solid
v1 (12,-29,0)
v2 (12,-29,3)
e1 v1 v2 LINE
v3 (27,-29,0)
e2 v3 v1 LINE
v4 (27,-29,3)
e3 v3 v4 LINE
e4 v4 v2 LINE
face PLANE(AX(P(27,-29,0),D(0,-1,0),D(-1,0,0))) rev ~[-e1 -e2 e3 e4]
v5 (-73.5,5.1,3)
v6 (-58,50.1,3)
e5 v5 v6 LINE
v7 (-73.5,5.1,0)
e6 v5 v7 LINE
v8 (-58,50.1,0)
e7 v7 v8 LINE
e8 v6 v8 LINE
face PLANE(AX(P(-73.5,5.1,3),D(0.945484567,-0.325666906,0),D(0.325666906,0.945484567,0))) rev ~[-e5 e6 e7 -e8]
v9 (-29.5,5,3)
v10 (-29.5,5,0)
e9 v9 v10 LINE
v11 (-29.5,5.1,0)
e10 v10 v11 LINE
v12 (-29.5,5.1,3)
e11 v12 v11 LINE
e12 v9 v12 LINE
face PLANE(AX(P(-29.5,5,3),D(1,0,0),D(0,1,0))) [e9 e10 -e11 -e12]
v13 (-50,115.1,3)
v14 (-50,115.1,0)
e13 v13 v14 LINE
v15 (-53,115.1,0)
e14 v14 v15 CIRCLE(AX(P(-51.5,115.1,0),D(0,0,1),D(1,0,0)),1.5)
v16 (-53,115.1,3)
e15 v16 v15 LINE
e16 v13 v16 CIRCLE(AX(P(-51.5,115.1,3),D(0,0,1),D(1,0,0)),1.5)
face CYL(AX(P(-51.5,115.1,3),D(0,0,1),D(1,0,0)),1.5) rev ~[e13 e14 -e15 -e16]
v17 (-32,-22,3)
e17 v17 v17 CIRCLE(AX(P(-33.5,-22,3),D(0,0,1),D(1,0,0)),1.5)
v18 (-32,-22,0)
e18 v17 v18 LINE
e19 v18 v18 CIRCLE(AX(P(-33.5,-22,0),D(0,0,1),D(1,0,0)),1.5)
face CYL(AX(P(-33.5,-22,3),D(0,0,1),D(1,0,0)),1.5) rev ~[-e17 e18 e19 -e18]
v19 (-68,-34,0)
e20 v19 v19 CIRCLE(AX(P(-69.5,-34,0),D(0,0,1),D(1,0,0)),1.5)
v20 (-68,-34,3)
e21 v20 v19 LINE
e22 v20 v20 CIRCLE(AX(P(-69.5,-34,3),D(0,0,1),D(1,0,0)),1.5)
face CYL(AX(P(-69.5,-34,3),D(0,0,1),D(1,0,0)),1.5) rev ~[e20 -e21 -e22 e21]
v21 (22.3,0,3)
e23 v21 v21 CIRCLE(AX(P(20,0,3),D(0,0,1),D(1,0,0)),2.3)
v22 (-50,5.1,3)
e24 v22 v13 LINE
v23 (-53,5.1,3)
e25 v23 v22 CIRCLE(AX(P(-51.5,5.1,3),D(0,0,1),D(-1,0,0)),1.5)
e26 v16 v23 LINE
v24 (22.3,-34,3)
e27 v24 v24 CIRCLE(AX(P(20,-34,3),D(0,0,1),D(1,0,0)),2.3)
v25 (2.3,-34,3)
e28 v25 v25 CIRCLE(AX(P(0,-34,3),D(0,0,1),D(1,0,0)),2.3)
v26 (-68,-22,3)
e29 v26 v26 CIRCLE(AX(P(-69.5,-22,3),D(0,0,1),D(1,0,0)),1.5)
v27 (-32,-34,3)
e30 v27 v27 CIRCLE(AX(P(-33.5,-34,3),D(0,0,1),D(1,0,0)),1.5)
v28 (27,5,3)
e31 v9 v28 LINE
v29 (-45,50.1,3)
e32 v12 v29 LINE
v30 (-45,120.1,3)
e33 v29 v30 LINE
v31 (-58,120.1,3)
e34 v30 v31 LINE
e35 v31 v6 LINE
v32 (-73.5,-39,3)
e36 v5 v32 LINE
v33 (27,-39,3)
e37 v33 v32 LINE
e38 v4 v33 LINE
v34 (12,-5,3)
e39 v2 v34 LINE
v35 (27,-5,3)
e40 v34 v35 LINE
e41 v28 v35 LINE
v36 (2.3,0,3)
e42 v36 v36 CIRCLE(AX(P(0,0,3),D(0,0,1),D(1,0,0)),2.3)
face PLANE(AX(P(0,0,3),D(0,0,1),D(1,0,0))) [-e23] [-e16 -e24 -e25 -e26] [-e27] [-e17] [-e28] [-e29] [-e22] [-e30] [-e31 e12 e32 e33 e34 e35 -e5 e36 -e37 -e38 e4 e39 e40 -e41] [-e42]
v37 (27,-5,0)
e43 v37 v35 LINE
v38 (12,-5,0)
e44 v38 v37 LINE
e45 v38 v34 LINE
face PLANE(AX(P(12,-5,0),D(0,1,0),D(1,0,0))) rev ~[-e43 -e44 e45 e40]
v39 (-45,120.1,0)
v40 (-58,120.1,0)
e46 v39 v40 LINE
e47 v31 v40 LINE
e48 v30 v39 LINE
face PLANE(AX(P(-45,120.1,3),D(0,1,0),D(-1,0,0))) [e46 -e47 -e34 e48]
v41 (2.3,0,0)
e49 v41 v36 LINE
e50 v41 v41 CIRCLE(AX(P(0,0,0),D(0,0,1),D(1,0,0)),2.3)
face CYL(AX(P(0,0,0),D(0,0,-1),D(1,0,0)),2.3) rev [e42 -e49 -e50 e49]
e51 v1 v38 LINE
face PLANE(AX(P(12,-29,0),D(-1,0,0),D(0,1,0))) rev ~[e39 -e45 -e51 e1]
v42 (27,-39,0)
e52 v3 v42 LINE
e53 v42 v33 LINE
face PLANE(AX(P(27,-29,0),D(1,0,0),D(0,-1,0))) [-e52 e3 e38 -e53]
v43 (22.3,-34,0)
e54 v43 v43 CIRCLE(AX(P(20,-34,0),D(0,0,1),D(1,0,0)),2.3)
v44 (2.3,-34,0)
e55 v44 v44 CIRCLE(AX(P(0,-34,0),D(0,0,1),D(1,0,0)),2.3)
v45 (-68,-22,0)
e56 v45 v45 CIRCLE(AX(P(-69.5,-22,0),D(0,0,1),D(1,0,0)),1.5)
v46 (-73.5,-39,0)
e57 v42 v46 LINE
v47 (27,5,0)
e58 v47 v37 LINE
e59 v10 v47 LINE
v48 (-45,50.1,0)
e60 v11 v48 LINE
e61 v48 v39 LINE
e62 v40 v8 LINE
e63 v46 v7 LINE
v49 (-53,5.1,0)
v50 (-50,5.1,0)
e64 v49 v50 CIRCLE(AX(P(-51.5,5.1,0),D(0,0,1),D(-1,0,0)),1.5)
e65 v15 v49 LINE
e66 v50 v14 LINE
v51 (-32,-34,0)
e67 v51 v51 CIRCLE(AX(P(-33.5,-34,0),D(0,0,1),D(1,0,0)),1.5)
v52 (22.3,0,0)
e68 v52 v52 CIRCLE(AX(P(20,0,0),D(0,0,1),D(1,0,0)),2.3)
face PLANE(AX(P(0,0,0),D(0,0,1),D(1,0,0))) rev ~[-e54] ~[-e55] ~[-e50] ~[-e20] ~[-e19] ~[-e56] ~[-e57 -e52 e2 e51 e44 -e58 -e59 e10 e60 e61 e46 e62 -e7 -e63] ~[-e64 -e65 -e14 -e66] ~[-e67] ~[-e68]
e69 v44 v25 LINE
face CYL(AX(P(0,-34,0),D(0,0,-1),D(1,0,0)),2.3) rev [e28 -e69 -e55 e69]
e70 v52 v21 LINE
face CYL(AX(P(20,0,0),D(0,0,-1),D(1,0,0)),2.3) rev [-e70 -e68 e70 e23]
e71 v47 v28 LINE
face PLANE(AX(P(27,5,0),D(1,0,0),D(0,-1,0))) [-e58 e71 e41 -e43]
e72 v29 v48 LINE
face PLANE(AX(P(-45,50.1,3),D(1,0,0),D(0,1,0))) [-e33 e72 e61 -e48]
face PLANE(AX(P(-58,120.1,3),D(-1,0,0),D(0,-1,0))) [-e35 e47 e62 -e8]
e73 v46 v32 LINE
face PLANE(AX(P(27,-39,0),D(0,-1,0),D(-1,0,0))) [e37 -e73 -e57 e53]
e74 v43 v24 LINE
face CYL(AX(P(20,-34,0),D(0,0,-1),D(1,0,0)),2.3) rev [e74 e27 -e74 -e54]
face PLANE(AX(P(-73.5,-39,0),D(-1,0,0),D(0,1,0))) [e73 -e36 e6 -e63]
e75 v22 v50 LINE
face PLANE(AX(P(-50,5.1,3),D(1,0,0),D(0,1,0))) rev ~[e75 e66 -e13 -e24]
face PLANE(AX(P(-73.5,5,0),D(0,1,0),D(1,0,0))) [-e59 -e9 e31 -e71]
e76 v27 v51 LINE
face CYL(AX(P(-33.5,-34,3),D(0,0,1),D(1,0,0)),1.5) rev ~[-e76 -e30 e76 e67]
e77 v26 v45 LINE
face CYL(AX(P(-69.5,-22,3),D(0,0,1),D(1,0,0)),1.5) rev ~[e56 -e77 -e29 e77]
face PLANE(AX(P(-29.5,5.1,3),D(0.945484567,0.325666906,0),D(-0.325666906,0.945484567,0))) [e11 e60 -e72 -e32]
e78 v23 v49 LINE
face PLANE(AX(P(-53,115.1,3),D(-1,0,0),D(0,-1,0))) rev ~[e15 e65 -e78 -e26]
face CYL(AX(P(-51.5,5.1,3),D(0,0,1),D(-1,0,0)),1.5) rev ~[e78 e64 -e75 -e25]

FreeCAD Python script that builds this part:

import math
import FreeCAD as App
import Part
import Sketcher
Q = App.Units.Quantity

doc = App.newDocument("Part")
params = doc.addObject("Spreadsheet::Sheet", "Params")
for row, (alias, value) in enumerate([
    ("sketch1_diameter", "4.6 mm"),
    ("sketch1_width", "15 mm"),
    ("sketch1_height", "10 mm"),
    ("sketch1_width2", "100.5 mm"),
    ("pad1_length", "3 mm"),
    ("sketch2_diameter", "3 mm"),
    ("pocket1_length", "3 mm"),
    ("sketch3_width", "44 mm"),
    ("sketch3_width2", "3 mm"),
    ("sketch3_height", "110 mm"),
    ("sketch3_height2", "0.1 mm"),
    ("pad2_length", "3 mm"),
    ("sketch4_radius", "1.5 mm"),
    ("pocket2_length", "3 mm"),
], start=1):
    params.set(f"A{row}", alias)
    params.set(f"B{row}", "=" + value)
    params.setAlias(f"B{row}", alias)

body = doc.addObject("PartDesign::Body", "Body")

sketch1 = body.newObject("Sketcher::SketchObject", "Sketch")
sketch1.AttachmentSupport = (doc.getObject("XY_Plane"), [""])
sketch1.MapMode = "FlatFace"
sketch1.addGeometry(Part.LineSegment(App.Vector(27, 5, 0), App.Vector(-73.5, 5, 0)), False)
sketch1.addGeometry(Part.LineSegment(App.Vector(-73.5, 5, 0), App.Vector(-73.5, -39, 0)), False)
sketch1.addGeometry(Part.LineSegment(App.Vector(-73.5, -39, 0), App.Vector(27, -39, 0)), False)
sketch1.addGeometry(Part.LineSegment(App.Vector(27, -39, 0), App.Vector(27, -29, 0)), False)
sketch1.addGeometry(Part.LineSegment(App.Vector(27, -29, 0), App.Vector(12, -29, 0)), False)
sketch1.addGeometry(Part.LineSegment(App.Vector(12, -29, 0), App.Vector(12, -5, 0)), False)
sketch1.addGeometry(Part.LineSegment(App.Vector(12, -5, 0), App.Vector(27, -5, 0)), False)
sketch1.addGeometry(Part.LineSegment(App.Vector(27, -5, 0), App.Vector(27, 5, 0)), False)
sketch1.addGeometry(Part.Circle(App.Vector(0, -34, 0), App.Vector(0, 0, 1), 2.3), False)
sketch1.addGeometry(Part.Circle(App.Vector(20, -34, 0), App.Vector(0, 0, 1), 2.3), False)
sketch1.addGeometry(Part.Circle(App.Vector(0, 0, 0), App.Vector(0, 0, 1), 2.3), False)
sketch1.addGeometry(Part.Circle(App.Vector(20, 0, 0), App.Vector(0, 0, 1), 2.3), False)
sketch1.addConstraint(Sketcher.Constraint("Coincident", 0, 2, 1, 1))
sketch1.addConstraint(Sketcher.Constraint("Coincident", 1, 2, 2, 1))
sketch1.addConstraint(Sketcher.Constraint("Coincident", 2, 2, 3, 1))
sketch1.addConstraint(Sketcher.Constraint("Coincident", 3, 2, 4, 1))
sketch1.addConstraint(Sketcher.Constraint("Coincident", 4, 2, 5, 1))
sketch1.addConstraint(Sketcher.Constraint("Coincident", 5, 2, 6, 1))
sketch1.addConstraint(Sketcher.Constraint("Coincident", 6, 2, 7, 1))
sketch1.addConstraint(Sketcher.Constraint("Coincident", 7, 2, 0, 1))
sketch1.addConstraint(Sketcher.Constraint("Horizontal", 0))
sketch1.addConstraint(Sketcher.Constraint("Vertical", 1))
sketch1.addConstraint(Sketcher.Constraint("Horizontal", 2))
sketch1.addConstraint(Sketcher.Constraint("Vertical", 3))
sketch1.addConstraint(Sketcher.Constraint("Horizontal", 4))
sketch1.addConstraint(Sketcher.Constraint("Vertical", 5))
sketch1.addConstraint(Sketcher.Constraint("Horizontal", 6))
sketch1.addConstraint(Sketcher.Constraint("Vertical", 7))
sketch1.addConstraint(Sketcher.Constraint("Coincident", 10, 3, -1, 1))
sketch1.addConstraint(Sketcher.Constraint("Equal", 8, 9))
sketch1.addConstraint(Sketcher.Constraint("Equal", 9, 10))
sketch1.addConstraint(Sketcher.Constraint("Equal", 10, 11))
sketch1.addConstraint(Sketcher.Constraint("PointOnObject", 8, 3, -2))
sketch1.addConstraint(Sketcher.Constraint("PointOnObject", 11, 3, -1))
sketch1.addConstraint(Sketcher.Constraint("Horizontal", 8, 3, 9, 3))
sketch1.addConstraint(Sketcher.Constraint("Vertical", 9, 3, 11, 3))
sketch1.addConstraint(Sketcher.Constraint("Vertical", 3, 2, 6, 2))
sketch1.addConstraint(Sketcher.Constraint("Equal", 3, 7))
sketch1.addConstraint(Sketcher.Constraint("Diameter", 8, Q("4.6 mm")))
sketch1.addConstraint(Sketcher.Constraint("DistanceX", 4, 2, 4, 1, Q("15 mm")))
sketch1.addConstraint(Sketcher.Constraint("DistanceY", 3, 1, 3, 2, Q("10 mm")))
sketch1.addConstraint(Sketcher.Constraint("DistanceX", 0, 2, 0, 1, Q("100.5 mm")))
sketch1.addConstraint(Sketcher.Constraint("DistanceY", 8, 3, -1, 1, Q("34 mm")))
sketch1.addConstraint(Sketcher.Constraint("DistanceX", -1, 1, 9, 3, Q("20 mm")))
sketch1.addConstraint(Sketcher.Constraint("DistanceY", -1, 1, 0, 2, Q("5 mm")))
sketch1.addConstraint(Sketcher.Constraint("DistanceY", 1, 2, 8, 3, Q("5 mm")))
sketch1.addConstraint(Sketcher.Constraint("DistanceX", 9, 3, 2, 2, Q("7 mm")))
sketch1.setExpression("Constraints[26]", "Params.sketch1_diameter")
sketch1.setExpression("Constraints[27]", "Params.sketch1_width")
sketch1.setExpression("Constraints[28]", "Params.sketch1_height")
sketch1.setExpression("Constraints[29]", "Params.sketch1_width2")
pad1 = body.newObject("PartDesign::Pad", "Pad")
pad1.Profile = sketch1
pad1.setExpression("Length", "Params.pad1_length")

sketch2 = body.newObject("Sketcher::SketchObject", "Sketch001")
sketch2.AttachmentSupport = (doc.getObject("XY_Plane"), [""])
sketch2.MapMode = "FlatFace"
sketch2.AttachmentOffset = App.Placement(App.Vector(0, 0, 3), App.Rotation())
sketch2.addGeometry(Part.Circle(App.Vector(-69.5, -34, 0), App.Vector(0, 0, 1), 1.5), False)
sketch2.addGeometry(Part.Circle(App.Vector(-33.5, -34, 0), App.Vector(0, 0, 1), 1.5), False)
sketch2.addGeometry(Part.Circle(App.Vector(-69.5, -22, 0), App.Vector(0, 0, 1), 1.5), False)
sketch2.addGeometry(Part.Circle(App.Vector(-33.5, -22, 0), App.Vector(0, 0, 1), 1.5), False)
sketch2.addConstraint(Sketcher.Constraint("Equal", 0, 1))
sketch2.addConstraint(Sketcher.Constraint("Equal", 1, 2))
sketch2.addConstraint(Sketcher.Constraint("Equal", 2, 3))
sketch2.addConstraint(Sketcher.Constraint("Horizontal", 0, 3, 1, 3))
sketch2.addConstraint(Sketcher.Constraint("Horizontal", 2, 3, 3, 3))
sketch2.addConstraint(Sketcher.Constraint("Vertical", 0, 3, 2, 3))
sketch2.addConstraint(Sketcher.Constraint("Vertical", 1, 3, 3, 3))
sketch2.addConstraint(Sketcher.Constraint("Diameter", 0, Q("3 mm")))
sketch2.addConstraint(Sketcher.Constraint("DistanceX", 0, 3, 1, 3, Q("36 mm")))
sketch2.addConstraint(Sketcher.Constraint("DistanceY", 0, 3, 2, 3, Q("12 mm")))
sketch2.addConstraint(Sketcher.Constraint("DistanceY", 0, 3, -1, 1, Q("34 mm")))
sketch2.addConstraint(Sketcher.Constraint("DistanceX", 0, 3, -1, 1, Q("69.5 mm")))
sketch2.setExpression("Constraints[7]", "Params.sketch2_diameter")
pocket1 = body.newObject("PartDesign::Pocket", "Pocket")
pocket1.Profile = sketch2
pocket1.setExpression("Length", "Params.pocket1_length")

sketch3 = body.newObject("Sketcher::SketchObject", "Sketch002")
sketch3.AttachmentSupport = (doc.getObject("XY_Plane"), [""])
sketch3.MapMode = "FlatFace"
sketch3.AttachmentOffset = App.Placement(App.Vector(0, 0, 3), App.Rotation())
sketch3.addGeometry(Part.LineSegment(App.Vector(-73.5, 5, 0), App.Vector(-29.5, 5, 0)), False)
sketch3.addGeometry(Part.LineSegment(App.Vector(-29.5, 5, 0), App.Vector(-29.5, 5.1, 0)), False)
sketch3.addGeometry(Part.LineSegment(App.Vector(-29.5, 5.1, 0), App.Vector(-45, 50.1, 0)), False)
sketch3.addGeometry(Part.LineSegment(App.Vector(-45, 50.1, 0), App.Vector(-45, 120.1, 0)), False)
sketch3.addGeometry(Part.LineSegment(App.Vector(-45, 120.1, 0), App.Vector(-58, 120.1, 0)), False)
sketch3.addGeometry(Part.LineSegment(App.Vector(-58, 120.1, 0), App.Vector(-58, 50.1, 0)), False)
sketch3.addGeometry(Part.LineSegment(App.Vector(-58, 50.1, 0), App.Vector(-73.5, 5.1, 0)), False)
sketch3.addGeometry(Part.LineSegment(App.Vector(-73.5, 5.1, 0), App.Vector(-73.5, 5, 0)), False)
sketch3.addGeometry(Part.LineSegment(App.Vector(-50, 5.1, 0), App.Vector(-53, 5.1, 0)), False)
sketch3.addGeometry(Part.LineSegment(App.Vector(-53, 5.1, 0), App.Vector(-53, 115.1, 0)), False)
sketch3.addGeometry(Part.LineSegment(App.Vector(-53, 115.1, 0), App.Vector(-50, 115.1, 0)), False)
sketch3.addGeometry(Part.LineSegment(App.Vector(-50, 115.1, 0), App.Vector(-50, 5.1, 0)), False)
sketch3.addConstraint(Sketcher.Constraint("Coincident", 0, 2, 1, 1))
sketch3.addConstraint(Sketcher.Constraint("Coincident", 1, 2, 2, 1))
sketch3.addConstraint(Sketcher.Constraint("Coincident", 2, 2, 3, 1))
sketch3.addConstraint(Sketcher.Constraint("Coincident", 3, 2, 4, 1))
sketch3.addConstraint(Sketcher.Constraint("Coincident", 4, 2, 5, 1))
sketch3.addConstraint(Sketcher.Constraint("Coincident", 5, 2, 6, 1))
sketch3.addConstraint(Sketcher.Constraint("Coincident", 6, 2, 7, 1))
sketch3.addConstraint(Sketcher.Constraint("Coincident", 7, 2, 0, 1))
sketch3.addConstraint(Sketcher.Constraint("Coincident", 8, 2, 9, 1))
sketch3.addConstraint(Sketcher.Constraint("Coincident", 9, 2, 10, 1))
sketch3.addConstraint(Sketcher.Constraint("Coincident", 10, 2, 11, 1))
sketch3.addConstraint(Sketcher.Constraint("Coincident", 11, 2, 8, 1))
sketch3.addConstraint(Sketcher.Constraint("Horizontal", 0))
sketch3.addConstraint(Sketcher.Constraint("Vertical", 1))
sketch3.addConstraint(Sketcher.Constraint("Vertical", 3))
sketch3.addConstraint(Sketcher.Constraint("Horizontal", 4))
sketch3.addConstraint(Sketcher.Constraint("Vertical", 5))
sketch3.addConstraint(Sketcher.Constraint("Vertical", 7))
sketch3.addConstraint(Sketcher.Constraint("Horizontal", 8))
sketch3.addConstraint(Sketcher.Constraint("Vertical", 9))
sketch3.addConstraint(Sketcher.Constraint("Horizontal", 10))
sketch3.addConstraint(Sketcher.Constraint("Vertical", 11))
sketch3.addConstraint(Sketcher.Constraint("Horizontal", 2, 2, 5, 2))
sketch3.addConstraint(Sketcher.Constraint("Horizontal", 1, 2, 6, 2))
sketch3.addConstraint(Sketcher.Constraint("Horizontal", 6, 2, 8, 2))
sketch3.addConstraint(Sketcher.Constraint("Equal", 2, 6))
sketch3.addConstraint(Sketcher.Constraint("DistanceX", 0, 1, 0, 2, Q("44 mm")))
sketch3.addConstraint(Sketcher.Constraint("DistanceX", 8, 2, 8, 1, Q("3 mm")))
sketch3.addConstraint(Sketcher.Constraint("DistanceY", 9, 1, 9, 2, Q("110 mm")))
sketch3.addConstraint(Sketcher.Constraint("DistanceY", 1, 1, 1, 2, Q("0.1 mm")))
sketch3.addConstraint(Sketcher.Constraint("DistanceY", -1, 1, 0, 2, Q("5 mm")))
sketch3.addConstraint(Sketcher.Constraint("DistanceX", 2, 2, -1, 1, Q("45 mm")))
sketch3.addConstraint(Sketcher.Constraint("DistanceY", 1, 2, 2, 2, Q("45 mm")))
sketch3.addConstraint(Sketcher.Constraint("DistanceX", 5, 2, 8, 2, Q("5 mm")))
sketch3.addConstraint(Sketcher.Constraint("DistanceY", 9, 2, 4, 2, Q("5 mm")))
sketch3.addConstraint(Sketcher.Constraint("DistanceX", 10, 2, 3, 2, Q("5 mm")))
sketch3.setExpression("Constraints[26]", "Params.sketch3_width")
sketch3.setExpression("Constraints[27]", "Params.sketch3_width2")
sketch3.setExpression("Constraints[28]", "Params.sketch3_height")
sketch3.setExpression("Constraints[29]", "Params.sketch3_height2")
pad2 = body.newObject("PartDesign::Pad", "Pad001")
pad2.Profile = sketch3
pad2.setExpression("Length", "Params.pad2_length")
pad2.Reversed = True

sketch4 = body.newObject("Sketcher::SketchObject", "Sketch003")
sketch4.AttachmentSupport = (doc.getObject("XY_Plane"), [""])
sketch4.MapMode = "FlatFace"
sketch4.AttachmentOffset = App.Placement(App.Vector(0, 0, 3), App.Rotation())
sketch4.addGeometry(Part.LineSegment(App.Vector(-50, 5.1, 0), App.Vector(-53, 5.1, 0)), False)
sketch4.addGeometry(Part.ArcOfCircle(Part.Circle(App.Vector(-51.5, 5.1, 0), App.Vector(0, 0, 1), 1.5), math.radians(180), math.radians(360)), False)
sketch4.addGeometry(Part.ArcOfCircle(Part.Circle(App.Vector(-51.5, 115.1, 0), App.Vector(0, 0, 1), 1.5), math.radians(0), math.radians(180)), False)
sketch4.addGeometry(Part.LineSegment(App.Vector(-53, 115.1, 0), App.Vector(-50, 115.1, 0)), False)
sketch4.addConstraint(Sketcher.Constraint("Coincident", 0, 1, 1, 2))
sketch4.addConstraint(Sketcher.Constraint("Coincident", 1, 1, 0, 2))
sketch4.addConstraint(Sketcher.Constraint("Coincident", 2, 1, 3, 2))
sketch4.addConstraint(Sketcher.Constraint("Coincident", 3, 1, 2, 2))
sketch4.addConstraint(Sketcher.Constraint("Horizontal", 0))
sketch4.addConstraint(Sketcher.Constraint("Horizontal", 3))
sketch4.addConstraint(Sketcher.Constraint("Equal", 1, 2))
sketch4.addConstraint(Sketcher.Constraint("Horizontal", 1, 3, 0, 1))
sketch4.addConstraint(Sketcher.Constraint("Vertical", 1, 3, 2, 3))
sketch4.addConstraint(Sketcher.Constraint("Radius", 1, Q("1.5 mm")))
sketch4.addConstraint(Sketcher.Constraint("DistanceX", 0, 1, -1, 1, Q("50 mm")))
sketch4.addConstraint(Sketcher.Constraint("DistanceY", 1, 3, 2, 3, Q("110 mm")))
sketch4.addConstraint(Sketcher.Constraint("DistanceY", 0, 1, 2, 1, Q("110 mm")))
sketch4.addConstraint(Sketcher.Constraint("DistanceY", -1, 1, 1, 3, Q("5.1 mm")))
sketch4.setExpression("Constraints[9]", "Params.sketch4_radius")
pocket2 = body.newObject("PartDesign::Pocket", "Pocket001")
pocket2.Profile = sketch4
pocket2.setExpression("Length", "Params.pocket2_length")

doc.recompute()
